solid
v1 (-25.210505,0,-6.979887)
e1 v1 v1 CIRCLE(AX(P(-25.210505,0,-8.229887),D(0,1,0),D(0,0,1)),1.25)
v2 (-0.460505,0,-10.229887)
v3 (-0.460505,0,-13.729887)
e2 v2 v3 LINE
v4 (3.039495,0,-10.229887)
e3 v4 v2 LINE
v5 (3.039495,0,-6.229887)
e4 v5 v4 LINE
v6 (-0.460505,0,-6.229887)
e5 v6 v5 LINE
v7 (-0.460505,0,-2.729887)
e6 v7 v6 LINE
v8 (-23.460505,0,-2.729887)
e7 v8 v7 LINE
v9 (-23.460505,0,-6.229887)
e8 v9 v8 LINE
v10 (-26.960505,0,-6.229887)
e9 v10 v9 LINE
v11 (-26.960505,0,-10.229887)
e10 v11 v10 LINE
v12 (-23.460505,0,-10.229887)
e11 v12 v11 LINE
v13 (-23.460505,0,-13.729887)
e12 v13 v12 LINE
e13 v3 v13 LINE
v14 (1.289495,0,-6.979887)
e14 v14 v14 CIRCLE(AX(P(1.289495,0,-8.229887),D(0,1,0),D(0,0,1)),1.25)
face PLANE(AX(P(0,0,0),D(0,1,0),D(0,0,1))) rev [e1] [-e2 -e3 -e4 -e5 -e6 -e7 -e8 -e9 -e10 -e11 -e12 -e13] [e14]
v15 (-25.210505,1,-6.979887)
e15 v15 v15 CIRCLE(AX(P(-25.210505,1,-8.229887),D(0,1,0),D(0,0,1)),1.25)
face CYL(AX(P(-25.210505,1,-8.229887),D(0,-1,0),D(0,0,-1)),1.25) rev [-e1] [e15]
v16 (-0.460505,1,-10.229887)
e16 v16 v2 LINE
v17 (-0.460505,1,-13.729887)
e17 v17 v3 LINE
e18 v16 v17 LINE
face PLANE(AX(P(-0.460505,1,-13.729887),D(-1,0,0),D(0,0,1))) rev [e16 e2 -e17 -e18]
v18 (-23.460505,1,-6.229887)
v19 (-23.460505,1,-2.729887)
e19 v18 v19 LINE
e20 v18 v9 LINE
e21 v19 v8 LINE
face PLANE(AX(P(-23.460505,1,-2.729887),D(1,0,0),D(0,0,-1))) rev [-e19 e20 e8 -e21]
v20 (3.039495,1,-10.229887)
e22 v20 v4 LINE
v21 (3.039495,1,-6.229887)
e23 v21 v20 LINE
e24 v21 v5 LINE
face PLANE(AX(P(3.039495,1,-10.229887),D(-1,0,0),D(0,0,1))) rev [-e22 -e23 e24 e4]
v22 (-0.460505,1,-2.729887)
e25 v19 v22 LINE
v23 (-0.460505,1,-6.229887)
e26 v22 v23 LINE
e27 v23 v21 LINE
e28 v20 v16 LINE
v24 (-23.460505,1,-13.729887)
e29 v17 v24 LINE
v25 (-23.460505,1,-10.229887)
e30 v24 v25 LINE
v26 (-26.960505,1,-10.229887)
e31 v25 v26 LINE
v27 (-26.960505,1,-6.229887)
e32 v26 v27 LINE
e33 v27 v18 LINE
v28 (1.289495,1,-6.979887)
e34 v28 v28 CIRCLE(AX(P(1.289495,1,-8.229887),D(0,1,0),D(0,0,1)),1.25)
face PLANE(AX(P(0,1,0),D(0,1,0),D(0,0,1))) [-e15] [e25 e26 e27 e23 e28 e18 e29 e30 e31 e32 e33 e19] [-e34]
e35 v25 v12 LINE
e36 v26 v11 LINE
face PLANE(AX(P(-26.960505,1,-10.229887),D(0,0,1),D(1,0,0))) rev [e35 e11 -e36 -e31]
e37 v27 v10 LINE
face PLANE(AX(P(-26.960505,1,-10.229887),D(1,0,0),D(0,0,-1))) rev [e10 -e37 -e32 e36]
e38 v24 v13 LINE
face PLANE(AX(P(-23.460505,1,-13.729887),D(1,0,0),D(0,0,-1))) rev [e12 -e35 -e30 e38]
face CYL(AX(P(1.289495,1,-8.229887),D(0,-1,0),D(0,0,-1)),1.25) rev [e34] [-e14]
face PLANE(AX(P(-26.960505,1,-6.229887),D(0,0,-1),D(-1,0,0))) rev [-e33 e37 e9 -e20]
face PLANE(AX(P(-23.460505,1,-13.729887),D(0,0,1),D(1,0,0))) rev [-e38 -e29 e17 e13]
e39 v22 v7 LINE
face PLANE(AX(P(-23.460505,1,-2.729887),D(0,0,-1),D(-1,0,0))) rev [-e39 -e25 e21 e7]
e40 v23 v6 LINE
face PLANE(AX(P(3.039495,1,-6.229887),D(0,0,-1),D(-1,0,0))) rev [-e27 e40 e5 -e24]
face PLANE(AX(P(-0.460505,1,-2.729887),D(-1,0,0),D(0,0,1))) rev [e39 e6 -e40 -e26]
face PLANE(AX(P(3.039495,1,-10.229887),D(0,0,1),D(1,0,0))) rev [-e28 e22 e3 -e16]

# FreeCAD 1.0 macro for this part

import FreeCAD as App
import Part
import Sketcher
from FreeCAD import Vector

doc = App.newDocument("Part")
body = doc.addObject("PartDesign::Body", "Body")

sketch1 = body.newObject("Sketcher::SketchObject", "Sketch")
sketch1.AttachmentSupport = (doc.getObject("XZ_Plane"), [""])
sketch1.MapMode = "FlatFace"
sketch1.addGeometry(Part.LineSegment(Vector(-0.460505, -13.729887, 0), Vector(-23.460505, -13.729887, 0)), False)
sketch1.addGeometry(Part.LineSegment(Vector(-23.460505, -13.729887, 0), Vector(-23.460505, -10.229887, 0)), False)
sketch1.addGeometry(Part.LineSegment(Vector(-23.460505, -10.229887, 0), Vector(-26.960505, -10.229887, 0)), False)
sketch1.addGeometry(Part.LineSegment(Vector(-26.960505, -10.229887, 0), Vector(-26.960505, -6.229887, 0)), False)
sketch1.addGeometry(Part.LineSegment(Vector(-26.960505, -6.229887, 0), Vector(-23.460505, -6.229887, 0)), False)
sketch1.addGeometry(Part.LineSegment(Vector(-23.460505, -6.229887, 0), Vector(-23.460505, -2.729887, 0)), False)
sketch1.addGeometry(Part.LineSegment(Vector(-23.460505, -2.729887, 0), Vector(-0.460505, -2.729887, 0)), False)
sketch1.addGeometry(Part.LineSegment(Vector(-0.460505, -2.729887, 0), Vector(-0.460505, -6.229887, 0)), False)
sketch1.addGeometry(Part.LineSegment(Vector(-0.460505, -6.229887, 0), Vector(3.039495, -6.229887, 0)), False)
sketch1.addGeometry(Part.LineSegment(Vector(3.039495, -6.229887, 0), Vector(3.039495, -10.229887, 0)), False)
sketch1.addGeometry(Part.LineSegment(Vector(3.039495, -10.229887, 0), Vector(-0.460505, -10.229887, 0)), False)
sketch1.addGeometry(Part.LineSegment(Vector(-0.460505, -10.229887, 0), Vector(-0.460505, -13.729887, 0)), False)
sketch1.addGeometry(Part.Circle(Vector(1.289495, -8.229887, 0), Vector(0, 0, 1), 1.25), False)
sketch1.addGeometry(Part.Circle(Vector(-25.210505, -8.229887, 0), Vector(0, 0, 1), 1.25), False)
sketch1.addConstraint(Sketcher.Constraint("Coincident", 0, 2, 1, 1))
sketch1.addConstraint(Sketcher.Constraint("Coincident", 1, 2, 2, 1))
sketch1.addConstraint(Sketcher.Constraint("Coincident", 2, 2, 3, 1))
sketch1.addConstraint(Sketcher.Constraint("Coincident", 3, 2, 4, 1))
sketch1.addConstraint(Sketcher.Constraint("Coincident", 4, 2, 5, 1))
sketch1.addConstraint(Sketcher.Constraint("Coincident", 5, 2, 6, 1))
sketch1.addConstraint(Sketcher.Constraint("Coincident", 6, 2, 7, 1))
sketch1.addConstraint(Sketcher.Constraint("Coincident", 7, 2, 8, 1))
sketch1.addConstraint(Sketcher.Constraint("Coincident", 8, 2, 9, 1))
sketch1.addConstraint(Sketcher.Constraint("Coincident", 9, 2, 10, 1))
sketch1.addConstraint(Sketcher.Constraint("Coincident", 10, 2, 11, 1))
sketch1.addConstraint(Sketcher.Constraint("Coincident", 11, 2, 0, 1))
sketch1.addConstraint(Sketcher.Constraint("Horizontal", 0))
sketch1.addConstraint(Sketcher.Constraint("Vertical", 1))
sketch1.addConstraint(Sketcher.Constraint("Horizontal", 2))
sketch1.addConstraint(Sketcher.Constraint("Vertical", 3))
sketch1.addConstraint(Sketcher.Constraint("Horizontal", 4))
sketch1.addConstraint(Sketcher.Constraint("Vertical", 5))
sketch1.addConstraint(Sketcher.Constraint("Horizontal", 6))
sketch1.addConstraint(Sketcher.Constraint("Vertical", 7))
sketch1.addConstraint(Sketcher.Constraint("Horizontal", 8))
sketch1.addConstraint(Sketcher.Constraint("Vertical", 9))
sketch1.addConstraint(Sketcher.Constraint("Horizontal", 10))
sketch1.addConstraint(Sketcher.Constraint("Vertical", 11))
sketch1.addConstraint(Sketcher.Constraint("Equal", 12, 13))
sketch1.addConstraint(Sketcher.Constraint("Horizontal", 12, 3, 13, 3))
sketch1.addConstraint(Sketcher.Constraint("Horizontal", 4, 2, 7, 2))
sketch1.addConstraint(Sketcher.Constraint("Horizontal", 2, 2, 9, 2))
sketch1.addConstraint(Sketcher.Constraint("Vertical", 1, 2, 4, 2))
sketch1.addConstraint(Sketcher.Constraint("Vertical", 7, 2, 10, 2))
sketch1.addConstraint(Sketcher.Constraint("Equal", 4, 8))
sketch1.addConstraint(Sketcher.Constraint("Equal", 10, 1))
sketch1.addConstraint(Sketcher.Constraint("Equal", 1, 5))
sketch1.addConstraint(Sketcher.Constraint("Diameter", 12, 2.5))
sketch1.addConstraint(Sketcher.Constraint("DistanceX", 0, 2, 0, 1, 23.0))
sketch1.addConstraint(Sketcher.Constraint("DistanceY", 3, 1, 3, 2, 4.0))
sketch1.addConstraint(Sketcher.Constraint("DistanceX", 2, 2, 2, 1, 3.5))
sketch1.addConstraint(Sketcher.Constraint("DistanceY", 1, 2, 13, 3, 2.0))
sketch1.addConstraint(Sketcher.Constraint("DistanceX", 13, 3, 12, 3, 26.5))
sketch1.addConstraint(Sketcher.Constraint("DistanceX", 13, 3, 0, 2, 1.75))
sketch1.addConstraint(Sketcher.Constraint("DistanceX", -1, 1, 12, 3, 1.289495))
sketch1.addConstraint(Sketcher.Constraint("DistanceY", 12, 3, -1, 1, 8.229887))
pad1 = body.newObject("PartDesign::Pad", "Pad")
pad1.Profile = sketch1
pad1.Length = 1
pad1.Reversed = True

doc.recompute()
